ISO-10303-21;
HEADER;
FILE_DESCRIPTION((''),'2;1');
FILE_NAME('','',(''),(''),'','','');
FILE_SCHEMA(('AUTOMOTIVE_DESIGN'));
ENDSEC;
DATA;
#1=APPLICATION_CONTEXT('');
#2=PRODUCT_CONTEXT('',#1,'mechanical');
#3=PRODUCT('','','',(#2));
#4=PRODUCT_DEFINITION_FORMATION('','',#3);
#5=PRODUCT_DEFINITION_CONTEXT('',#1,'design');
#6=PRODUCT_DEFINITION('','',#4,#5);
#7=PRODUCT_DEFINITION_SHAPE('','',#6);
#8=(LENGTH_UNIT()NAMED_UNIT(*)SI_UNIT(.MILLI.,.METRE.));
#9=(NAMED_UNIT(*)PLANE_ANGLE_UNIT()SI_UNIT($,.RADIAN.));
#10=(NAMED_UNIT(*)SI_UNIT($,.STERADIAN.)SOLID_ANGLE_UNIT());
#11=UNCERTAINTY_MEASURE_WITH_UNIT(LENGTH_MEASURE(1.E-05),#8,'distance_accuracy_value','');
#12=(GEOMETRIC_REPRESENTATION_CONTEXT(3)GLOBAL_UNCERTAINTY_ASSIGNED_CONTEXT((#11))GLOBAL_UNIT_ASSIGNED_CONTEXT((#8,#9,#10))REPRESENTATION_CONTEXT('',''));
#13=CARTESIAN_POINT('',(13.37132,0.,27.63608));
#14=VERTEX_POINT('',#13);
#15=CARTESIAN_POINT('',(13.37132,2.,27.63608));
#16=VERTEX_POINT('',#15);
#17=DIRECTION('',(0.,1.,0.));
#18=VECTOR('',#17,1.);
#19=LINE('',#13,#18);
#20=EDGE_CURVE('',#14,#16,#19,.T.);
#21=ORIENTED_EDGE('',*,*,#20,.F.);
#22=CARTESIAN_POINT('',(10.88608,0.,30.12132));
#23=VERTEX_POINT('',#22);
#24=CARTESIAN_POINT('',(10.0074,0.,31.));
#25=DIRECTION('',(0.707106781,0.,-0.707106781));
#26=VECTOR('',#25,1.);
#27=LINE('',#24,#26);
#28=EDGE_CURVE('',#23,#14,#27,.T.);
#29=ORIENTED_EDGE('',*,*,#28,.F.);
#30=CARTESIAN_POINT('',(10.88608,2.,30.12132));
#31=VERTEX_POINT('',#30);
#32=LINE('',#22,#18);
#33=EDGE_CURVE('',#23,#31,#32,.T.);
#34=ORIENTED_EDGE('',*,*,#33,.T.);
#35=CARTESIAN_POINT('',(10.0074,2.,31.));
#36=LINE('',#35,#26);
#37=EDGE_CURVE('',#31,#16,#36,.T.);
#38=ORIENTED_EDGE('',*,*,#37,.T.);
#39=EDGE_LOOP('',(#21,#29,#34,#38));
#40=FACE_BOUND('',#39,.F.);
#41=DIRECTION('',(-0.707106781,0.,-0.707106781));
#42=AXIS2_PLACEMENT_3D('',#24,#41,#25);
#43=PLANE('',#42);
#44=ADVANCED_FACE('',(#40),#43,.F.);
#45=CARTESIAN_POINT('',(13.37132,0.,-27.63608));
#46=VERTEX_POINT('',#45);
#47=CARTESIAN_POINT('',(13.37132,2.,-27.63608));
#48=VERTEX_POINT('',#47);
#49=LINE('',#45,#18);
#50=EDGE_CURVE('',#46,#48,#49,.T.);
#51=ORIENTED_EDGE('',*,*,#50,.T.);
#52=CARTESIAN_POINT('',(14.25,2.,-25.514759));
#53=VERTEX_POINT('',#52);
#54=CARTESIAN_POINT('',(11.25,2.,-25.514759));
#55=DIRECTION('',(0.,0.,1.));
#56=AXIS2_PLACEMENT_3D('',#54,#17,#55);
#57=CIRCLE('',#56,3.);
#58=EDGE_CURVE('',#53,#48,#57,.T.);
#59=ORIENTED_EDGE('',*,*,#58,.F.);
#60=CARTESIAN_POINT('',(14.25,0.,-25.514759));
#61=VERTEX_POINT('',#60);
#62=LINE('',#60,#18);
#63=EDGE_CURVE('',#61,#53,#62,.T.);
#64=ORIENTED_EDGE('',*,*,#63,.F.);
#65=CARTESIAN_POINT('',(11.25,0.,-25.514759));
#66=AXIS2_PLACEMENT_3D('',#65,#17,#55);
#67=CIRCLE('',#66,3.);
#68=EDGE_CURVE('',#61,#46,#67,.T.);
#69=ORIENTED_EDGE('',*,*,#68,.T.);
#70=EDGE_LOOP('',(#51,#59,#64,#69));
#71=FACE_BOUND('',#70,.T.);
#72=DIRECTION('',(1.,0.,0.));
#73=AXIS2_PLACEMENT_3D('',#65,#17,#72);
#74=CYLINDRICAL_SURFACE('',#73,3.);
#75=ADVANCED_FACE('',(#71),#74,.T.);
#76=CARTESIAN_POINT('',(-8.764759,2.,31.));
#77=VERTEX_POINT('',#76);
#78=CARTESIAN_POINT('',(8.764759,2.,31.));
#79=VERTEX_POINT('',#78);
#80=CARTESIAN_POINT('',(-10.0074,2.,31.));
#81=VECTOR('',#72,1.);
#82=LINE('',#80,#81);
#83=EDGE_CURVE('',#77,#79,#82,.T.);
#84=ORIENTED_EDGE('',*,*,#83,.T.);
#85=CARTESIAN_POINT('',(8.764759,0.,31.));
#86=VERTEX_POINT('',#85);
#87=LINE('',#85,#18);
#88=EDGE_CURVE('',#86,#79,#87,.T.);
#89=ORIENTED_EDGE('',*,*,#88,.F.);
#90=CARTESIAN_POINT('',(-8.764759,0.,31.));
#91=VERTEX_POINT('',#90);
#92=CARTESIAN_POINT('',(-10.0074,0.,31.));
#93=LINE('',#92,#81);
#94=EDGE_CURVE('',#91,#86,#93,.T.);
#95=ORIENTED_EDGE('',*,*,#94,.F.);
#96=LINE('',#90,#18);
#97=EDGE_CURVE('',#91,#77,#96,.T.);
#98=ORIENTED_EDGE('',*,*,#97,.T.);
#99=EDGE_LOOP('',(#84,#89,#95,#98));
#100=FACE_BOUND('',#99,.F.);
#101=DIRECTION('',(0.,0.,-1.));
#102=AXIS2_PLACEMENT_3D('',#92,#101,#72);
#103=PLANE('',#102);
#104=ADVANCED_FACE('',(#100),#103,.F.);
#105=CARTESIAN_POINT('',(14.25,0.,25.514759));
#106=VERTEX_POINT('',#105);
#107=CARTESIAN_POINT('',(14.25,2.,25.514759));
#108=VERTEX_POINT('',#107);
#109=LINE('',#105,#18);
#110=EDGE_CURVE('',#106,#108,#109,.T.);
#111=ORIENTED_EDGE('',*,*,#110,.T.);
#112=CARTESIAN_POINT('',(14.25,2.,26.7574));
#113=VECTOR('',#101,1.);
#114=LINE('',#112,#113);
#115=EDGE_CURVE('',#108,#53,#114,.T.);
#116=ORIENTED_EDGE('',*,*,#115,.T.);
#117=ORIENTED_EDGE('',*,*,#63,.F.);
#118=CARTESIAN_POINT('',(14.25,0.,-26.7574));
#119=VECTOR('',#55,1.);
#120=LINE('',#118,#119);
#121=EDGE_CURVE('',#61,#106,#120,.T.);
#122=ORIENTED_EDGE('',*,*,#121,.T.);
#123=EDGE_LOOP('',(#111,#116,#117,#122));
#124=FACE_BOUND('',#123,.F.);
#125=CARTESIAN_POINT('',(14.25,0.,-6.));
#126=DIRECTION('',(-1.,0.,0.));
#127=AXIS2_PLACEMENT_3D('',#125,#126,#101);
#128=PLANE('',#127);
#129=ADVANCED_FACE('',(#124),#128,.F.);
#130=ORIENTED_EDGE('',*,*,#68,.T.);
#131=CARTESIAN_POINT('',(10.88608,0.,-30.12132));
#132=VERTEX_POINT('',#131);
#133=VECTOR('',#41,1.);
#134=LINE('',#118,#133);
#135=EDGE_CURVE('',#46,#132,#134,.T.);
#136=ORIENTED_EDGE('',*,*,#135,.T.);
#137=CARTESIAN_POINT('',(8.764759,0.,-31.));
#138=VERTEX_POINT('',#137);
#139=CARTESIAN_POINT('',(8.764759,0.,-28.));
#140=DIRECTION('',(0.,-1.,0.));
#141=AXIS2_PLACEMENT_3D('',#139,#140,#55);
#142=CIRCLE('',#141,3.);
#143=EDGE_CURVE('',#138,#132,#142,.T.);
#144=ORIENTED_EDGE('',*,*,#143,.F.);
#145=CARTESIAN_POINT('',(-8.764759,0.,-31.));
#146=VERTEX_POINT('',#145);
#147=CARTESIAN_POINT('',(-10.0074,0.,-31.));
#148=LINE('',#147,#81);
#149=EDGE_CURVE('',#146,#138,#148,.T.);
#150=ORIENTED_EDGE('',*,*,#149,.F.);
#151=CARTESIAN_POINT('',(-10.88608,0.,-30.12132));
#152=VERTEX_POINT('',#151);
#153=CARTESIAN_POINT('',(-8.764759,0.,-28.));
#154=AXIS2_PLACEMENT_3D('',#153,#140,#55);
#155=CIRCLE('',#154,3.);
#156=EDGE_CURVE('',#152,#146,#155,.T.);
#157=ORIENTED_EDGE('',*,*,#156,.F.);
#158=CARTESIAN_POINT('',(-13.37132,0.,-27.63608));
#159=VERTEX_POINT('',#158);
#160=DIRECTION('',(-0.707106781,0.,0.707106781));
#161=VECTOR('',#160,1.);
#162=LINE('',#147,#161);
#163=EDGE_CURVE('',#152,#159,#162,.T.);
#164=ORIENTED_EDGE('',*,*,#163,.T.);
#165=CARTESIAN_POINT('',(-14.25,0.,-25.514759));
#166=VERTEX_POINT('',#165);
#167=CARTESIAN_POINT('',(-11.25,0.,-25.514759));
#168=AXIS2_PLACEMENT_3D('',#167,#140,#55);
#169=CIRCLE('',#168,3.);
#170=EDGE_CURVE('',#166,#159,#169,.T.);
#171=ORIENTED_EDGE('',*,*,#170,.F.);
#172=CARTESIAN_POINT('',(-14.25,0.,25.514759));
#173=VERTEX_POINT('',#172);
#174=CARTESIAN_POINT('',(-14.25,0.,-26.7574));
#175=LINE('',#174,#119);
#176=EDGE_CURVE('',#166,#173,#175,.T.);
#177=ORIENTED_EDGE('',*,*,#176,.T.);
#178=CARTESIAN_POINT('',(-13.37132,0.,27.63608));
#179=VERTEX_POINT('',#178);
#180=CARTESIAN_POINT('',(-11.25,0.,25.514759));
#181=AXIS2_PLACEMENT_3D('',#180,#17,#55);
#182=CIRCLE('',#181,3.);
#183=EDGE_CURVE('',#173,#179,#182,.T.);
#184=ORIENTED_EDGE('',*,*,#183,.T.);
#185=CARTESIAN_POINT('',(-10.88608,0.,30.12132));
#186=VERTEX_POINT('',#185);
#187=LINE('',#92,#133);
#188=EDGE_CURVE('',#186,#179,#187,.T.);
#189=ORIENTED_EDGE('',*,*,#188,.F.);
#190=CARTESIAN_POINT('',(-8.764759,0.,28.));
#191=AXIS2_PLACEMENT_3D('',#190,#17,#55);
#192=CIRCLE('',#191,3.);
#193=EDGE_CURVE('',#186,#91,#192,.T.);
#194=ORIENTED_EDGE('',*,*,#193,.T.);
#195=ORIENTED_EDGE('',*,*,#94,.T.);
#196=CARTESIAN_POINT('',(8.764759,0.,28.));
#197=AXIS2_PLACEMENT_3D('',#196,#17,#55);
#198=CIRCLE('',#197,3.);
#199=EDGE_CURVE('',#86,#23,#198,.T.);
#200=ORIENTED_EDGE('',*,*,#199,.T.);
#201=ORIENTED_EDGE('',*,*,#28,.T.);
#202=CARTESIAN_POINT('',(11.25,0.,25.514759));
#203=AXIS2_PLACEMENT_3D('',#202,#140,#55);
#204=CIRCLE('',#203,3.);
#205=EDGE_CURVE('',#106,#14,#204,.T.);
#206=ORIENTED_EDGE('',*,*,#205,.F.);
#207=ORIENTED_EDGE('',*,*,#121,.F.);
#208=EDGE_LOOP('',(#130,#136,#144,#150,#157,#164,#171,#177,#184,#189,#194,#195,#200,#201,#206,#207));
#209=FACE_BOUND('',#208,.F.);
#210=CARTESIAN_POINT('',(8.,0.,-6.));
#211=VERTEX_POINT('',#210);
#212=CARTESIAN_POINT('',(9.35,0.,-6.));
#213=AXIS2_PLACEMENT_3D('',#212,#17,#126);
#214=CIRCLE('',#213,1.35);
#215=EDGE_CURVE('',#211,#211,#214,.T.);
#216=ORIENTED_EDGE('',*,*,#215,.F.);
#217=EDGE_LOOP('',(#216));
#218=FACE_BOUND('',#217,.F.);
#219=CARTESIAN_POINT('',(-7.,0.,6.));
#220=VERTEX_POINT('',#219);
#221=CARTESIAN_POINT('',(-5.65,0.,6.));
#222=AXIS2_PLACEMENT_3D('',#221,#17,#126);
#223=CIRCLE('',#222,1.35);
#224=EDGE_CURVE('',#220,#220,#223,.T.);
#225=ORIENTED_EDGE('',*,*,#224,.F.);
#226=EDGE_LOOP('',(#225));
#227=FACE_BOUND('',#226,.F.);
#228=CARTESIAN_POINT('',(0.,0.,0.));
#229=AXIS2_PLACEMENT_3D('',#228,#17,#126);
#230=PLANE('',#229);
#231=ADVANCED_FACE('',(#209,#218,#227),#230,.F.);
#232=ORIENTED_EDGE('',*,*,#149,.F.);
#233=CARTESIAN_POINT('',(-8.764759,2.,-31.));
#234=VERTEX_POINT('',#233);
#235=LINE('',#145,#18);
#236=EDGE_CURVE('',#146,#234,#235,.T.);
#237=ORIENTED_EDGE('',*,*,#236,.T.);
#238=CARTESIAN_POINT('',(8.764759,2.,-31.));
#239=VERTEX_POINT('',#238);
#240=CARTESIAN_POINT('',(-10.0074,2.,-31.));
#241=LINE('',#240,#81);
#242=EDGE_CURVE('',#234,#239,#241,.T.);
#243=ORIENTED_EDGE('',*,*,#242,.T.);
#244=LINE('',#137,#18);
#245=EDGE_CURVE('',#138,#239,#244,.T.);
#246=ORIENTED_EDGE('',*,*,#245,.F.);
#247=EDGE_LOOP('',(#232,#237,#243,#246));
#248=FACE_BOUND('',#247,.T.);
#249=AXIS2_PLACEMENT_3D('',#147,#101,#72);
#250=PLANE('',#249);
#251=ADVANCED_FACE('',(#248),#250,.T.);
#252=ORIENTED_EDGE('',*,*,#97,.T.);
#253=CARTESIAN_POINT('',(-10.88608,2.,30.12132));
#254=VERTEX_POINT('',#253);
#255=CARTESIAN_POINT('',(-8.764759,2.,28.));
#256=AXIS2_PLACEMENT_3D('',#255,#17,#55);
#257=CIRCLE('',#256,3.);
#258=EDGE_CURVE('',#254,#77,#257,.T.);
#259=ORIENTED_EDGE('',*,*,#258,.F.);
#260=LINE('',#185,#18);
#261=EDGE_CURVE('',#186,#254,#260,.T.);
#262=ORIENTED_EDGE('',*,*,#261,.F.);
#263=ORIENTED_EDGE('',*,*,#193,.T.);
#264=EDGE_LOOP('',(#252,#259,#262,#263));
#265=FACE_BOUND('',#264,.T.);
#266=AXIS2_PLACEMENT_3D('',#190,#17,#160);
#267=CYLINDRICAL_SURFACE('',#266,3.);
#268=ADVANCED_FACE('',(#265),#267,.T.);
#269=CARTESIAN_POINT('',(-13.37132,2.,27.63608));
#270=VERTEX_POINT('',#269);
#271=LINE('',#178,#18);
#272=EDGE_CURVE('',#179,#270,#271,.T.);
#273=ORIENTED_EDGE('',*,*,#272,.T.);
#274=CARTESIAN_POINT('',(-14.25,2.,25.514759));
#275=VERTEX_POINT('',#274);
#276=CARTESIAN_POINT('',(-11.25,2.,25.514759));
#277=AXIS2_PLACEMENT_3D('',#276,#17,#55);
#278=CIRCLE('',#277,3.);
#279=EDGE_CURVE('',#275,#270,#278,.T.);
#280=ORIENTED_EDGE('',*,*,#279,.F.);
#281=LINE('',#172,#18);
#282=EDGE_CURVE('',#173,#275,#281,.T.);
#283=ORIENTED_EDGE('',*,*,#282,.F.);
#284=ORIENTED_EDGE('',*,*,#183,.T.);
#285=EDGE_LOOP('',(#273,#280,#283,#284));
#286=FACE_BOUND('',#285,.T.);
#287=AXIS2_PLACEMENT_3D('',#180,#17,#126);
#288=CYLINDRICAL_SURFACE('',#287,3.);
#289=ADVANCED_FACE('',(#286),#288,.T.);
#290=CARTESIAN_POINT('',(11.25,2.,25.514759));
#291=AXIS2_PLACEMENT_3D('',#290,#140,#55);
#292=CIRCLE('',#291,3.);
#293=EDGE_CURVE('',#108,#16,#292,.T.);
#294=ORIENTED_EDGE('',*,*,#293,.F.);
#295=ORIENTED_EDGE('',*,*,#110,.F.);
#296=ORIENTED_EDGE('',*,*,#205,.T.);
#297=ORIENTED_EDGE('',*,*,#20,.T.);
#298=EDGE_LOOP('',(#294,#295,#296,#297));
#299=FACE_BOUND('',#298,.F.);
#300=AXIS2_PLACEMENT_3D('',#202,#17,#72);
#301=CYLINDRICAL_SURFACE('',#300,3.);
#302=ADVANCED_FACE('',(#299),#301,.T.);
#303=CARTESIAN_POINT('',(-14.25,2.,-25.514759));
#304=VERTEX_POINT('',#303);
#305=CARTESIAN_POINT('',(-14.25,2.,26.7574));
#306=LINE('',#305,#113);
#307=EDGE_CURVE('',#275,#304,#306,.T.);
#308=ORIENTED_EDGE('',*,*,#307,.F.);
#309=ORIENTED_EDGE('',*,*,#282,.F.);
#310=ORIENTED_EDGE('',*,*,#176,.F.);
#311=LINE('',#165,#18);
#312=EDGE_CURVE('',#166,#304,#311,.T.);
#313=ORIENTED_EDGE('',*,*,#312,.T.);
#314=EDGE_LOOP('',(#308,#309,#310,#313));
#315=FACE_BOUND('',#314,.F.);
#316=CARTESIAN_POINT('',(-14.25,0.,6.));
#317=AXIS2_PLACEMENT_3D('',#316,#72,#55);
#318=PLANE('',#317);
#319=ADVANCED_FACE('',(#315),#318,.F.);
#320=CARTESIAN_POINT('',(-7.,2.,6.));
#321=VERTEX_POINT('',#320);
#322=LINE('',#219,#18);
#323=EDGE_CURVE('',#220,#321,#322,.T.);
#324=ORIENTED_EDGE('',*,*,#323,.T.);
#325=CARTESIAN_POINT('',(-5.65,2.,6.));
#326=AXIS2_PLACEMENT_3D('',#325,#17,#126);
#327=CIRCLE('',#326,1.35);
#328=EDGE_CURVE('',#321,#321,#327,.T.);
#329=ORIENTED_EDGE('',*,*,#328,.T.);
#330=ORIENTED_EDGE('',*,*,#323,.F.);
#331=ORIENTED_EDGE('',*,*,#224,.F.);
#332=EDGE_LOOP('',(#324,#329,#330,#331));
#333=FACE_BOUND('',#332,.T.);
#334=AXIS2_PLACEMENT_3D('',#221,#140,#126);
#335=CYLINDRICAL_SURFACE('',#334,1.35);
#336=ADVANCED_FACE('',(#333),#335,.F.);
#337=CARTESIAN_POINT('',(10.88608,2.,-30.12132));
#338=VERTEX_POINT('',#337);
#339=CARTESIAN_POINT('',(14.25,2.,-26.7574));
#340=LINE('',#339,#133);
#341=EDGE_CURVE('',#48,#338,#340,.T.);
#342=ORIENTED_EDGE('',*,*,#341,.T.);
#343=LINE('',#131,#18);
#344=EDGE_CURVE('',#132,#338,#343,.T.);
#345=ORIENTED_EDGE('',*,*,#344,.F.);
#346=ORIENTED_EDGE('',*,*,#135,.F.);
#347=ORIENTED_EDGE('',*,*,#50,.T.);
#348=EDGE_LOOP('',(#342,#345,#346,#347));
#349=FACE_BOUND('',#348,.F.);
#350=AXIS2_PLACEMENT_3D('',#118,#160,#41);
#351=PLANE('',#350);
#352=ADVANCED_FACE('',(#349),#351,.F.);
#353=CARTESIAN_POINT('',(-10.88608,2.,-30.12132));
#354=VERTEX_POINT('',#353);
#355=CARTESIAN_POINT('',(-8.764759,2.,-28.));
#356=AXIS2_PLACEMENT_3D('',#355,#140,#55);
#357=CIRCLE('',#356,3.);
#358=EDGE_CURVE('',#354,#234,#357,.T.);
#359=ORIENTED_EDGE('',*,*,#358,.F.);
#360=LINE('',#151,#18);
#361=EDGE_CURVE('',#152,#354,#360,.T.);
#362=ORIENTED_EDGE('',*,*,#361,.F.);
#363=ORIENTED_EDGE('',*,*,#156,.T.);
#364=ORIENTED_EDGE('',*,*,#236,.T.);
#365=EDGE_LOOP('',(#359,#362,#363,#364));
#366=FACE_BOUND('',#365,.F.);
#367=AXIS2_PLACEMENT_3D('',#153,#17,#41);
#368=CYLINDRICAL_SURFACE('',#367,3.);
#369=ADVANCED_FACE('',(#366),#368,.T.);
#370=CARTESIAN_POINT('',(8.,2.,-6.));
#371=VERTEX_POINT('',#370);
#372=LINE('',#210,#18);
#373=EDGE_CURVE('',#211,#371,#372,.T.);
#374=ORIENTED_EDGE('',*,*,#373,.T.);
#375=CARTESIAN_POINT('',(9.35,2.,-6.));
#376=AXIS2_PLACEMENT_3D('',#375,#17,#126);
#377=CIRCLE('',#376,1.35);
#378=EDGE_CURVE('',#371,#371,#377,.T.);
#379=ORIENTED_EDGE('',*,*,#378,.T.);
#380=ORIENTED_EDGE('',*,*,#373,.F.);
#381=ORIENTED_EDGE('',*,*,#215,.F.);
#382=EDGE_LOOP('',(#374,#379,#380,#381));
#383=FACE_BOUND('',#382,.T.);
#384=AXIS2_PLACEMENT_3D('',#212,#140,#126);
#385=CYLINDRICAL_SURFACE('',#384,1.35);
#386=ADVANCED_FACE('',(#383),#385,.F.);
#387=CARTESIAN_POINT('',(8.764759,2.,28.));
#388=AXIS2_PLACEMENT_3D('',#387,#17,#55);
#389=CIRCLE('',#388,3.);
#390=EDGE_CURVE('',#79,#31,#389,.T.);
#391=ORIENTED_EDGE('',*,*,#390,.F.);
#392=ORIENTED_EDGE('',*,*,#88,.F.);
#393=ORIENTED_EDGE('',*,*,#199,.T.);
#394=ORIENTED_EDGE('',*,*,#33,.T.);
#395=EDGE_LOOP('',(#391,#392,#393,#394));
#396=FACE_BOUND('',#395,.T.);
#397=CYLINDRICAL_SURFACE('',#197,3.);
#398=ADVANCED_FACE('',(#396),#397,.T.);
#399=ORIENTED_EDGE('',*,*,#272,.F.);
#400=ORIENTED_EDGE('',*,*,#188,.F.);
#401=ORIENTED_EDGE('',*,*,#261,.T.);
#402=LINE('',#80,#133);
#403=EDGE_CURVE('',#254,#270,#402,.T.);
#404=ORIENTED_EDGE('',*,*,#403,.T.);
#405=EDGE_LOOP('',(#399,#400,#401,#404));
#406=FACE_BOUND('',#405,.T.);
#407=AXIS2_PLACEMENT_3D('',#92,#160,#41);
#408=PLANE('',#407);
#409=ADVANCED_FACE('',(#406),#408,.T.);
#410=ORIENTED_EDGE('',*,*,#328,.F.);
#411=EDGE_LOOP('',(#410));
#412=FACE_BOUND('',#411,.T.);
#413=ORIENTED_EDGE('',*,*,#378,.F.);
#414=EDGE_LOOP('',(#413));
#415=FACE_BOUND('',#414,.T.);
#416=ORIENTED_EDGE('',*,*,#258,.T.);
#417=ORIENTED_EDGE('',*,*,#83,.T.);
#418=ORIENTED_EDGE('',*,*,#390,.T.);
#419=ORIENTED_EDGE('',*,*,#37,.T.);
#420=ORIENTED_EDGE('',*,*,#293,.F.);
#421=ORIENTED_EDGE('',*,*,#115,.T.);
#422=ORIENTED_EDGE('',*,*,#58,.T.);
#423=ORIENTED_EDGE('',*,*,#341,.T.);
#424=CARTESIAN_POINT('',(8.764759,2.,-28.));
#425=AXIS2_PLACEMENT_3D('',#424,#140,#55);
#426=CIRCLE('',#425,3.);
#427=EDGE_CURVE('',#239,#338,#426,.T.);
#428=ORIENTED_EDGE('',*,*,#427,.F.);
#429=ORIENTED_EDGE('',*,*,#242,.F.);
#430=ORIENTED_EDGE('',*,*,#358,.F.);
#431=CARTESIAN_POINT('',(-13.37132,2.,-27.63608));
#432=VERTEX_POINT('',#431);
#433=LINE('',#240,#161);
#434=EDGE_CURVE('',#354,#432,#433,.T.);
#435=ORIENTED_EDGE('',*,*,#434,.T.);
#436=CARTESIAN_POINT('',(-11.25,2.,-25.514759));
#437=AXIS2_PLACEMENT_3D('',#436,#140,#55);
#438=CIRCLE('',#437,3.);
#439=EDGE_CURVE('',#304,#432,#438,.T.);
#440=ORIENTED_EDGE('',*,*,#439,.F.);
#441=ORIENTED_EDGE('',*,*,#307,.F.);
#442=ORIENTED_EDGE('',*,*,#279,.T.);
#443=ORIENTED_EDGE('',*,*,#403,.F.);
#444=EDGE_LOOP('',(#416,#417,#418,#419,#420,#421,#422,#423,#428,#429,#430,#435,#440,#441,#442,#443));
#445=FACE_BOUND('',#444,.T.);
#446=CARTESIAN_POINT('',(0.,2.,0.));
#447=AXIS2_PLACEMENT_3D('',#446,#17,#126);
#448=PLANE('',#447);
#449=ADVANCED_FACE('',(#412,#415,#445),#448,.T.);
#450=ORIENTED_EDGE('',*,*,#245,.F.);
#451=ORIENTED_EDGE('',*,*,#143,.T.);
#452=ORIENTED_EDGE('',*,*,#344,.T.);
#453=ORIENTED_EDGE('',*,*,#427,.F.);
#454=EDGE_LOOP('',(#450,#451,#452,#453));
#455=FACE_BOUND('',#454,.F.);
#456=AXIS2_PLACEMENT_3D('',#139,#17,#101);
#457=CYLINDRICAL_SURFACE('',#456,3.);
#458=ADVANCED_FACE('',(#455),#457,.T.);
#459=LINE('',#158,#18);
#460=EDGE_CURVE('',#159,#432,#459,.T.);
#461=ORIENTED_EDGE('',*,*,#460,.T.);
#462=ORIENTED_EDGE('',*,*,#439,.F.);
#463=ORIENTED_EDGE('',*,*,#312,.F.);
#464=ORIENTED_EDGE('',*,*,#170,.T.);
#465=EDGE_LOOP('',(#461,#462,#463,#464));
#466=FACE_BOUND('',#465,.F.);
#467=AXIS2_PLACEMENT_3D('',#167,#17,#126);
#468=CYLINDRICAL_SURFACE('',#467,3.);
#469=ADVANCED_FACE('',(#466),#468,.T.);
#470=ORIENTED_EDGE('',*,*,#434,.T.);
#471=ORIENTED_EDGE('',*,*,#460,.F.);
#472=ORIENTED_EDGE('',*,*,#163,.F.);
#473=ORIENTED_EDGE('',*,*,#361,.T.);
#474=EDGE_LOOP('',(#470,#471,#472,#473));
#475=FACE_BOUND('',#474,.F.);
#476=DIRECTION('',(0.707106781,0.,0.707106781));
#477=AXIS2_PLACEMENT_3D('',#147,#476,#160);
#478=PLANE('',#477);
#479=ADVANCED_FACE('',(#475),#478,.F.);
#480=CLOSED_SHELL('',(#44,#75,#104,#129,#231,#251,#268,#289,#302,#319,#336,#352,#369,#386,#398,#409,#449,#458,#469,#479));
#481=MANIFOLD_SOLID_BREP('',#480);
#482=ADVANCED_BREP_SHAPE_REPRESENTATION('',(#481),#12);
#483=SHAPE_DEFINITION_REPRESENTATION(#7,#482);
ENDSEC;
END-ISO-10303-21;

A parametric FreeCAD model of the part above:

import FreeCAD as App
import Part
import Sketcher

V = App.Vector


def edges_at(feature, points):
    """Names of the edges that pass closest to the given points."""
    edges = feature.Shape.Edges
    near = lambda p: min(range(len(edges)), key=lambda i: edges[i].distToShape(Part.Vertex(*p))[0])
    return sorted({f"Edge{near(p) + 1}" for p in points})


def add_polygon(sketch, points):
    """Adds a closed chain of lines whose ends are joined by coincident constraints."""
    first, n = sketch.GeometryCount, len(points)
    for a, b in zip(points, points[1:] + points[:1]):
        sketch.addGeometry(Part.LineSegment(App.Vector(*a, 0), App.Vector(*b, 0)), False)
    for i in range(n):
        sketch.addConstraint(Sketcher.Constraint("Coincident", first + i, 2, first + (i + 1) % n, 1))

doc = App.newDocument("Part")
body = doc.addObject("PartDesign::Body", "Body")

# Sketch on XZ plane
sketch1 = body.newObject("Sketcher::SketchObject", "Sketch")
sketch1.AttachmentSupport = (doc.getObject("XZ_Plane"), [""])
sketch1.MapMode = "FlatFace"
add_polygon(sketch1, [(-14.25, 26.7574), (-10.0074, 31), (10.0074, 31), (14.25, 26.7574), (14.25, -26.7574), (10.0074, -31), (-10.0074, -31), (-14.25, -26.7574)])  # lines 0-7
sketch1.addGeometry(Part.Circle(V(9.35, -6, 0), V(0, 0, 1), 1.35), False)  # 8
sketch1.addGeometry(Part.Circle(V(-5.65, 6, 0), V(0, 0, 1), 1.35), False)  # 9
sketch1.addConstraint([
    Sketcher.Constraint("Horizontal", 1),
    Sketcher.Constraint("Vertical", 3),
    Sketcher.Constraint("Horizontal", 5),
    Sketcher.Constraint("Vertical", 7),
    Sketcher.Constraint("Equal", 8, 9),
    Sketcher.Constraint("Symmetric", 0, 2, 4, 2, -1, 1),
    Sketcher.Constraint("Symmetric", 2, 2, 6, 2, -1, 1),
    Sketcher.Constraint("Perpendicular", 0, 2),
    Sketcher.Constraint("Perpendicular", 2, 4),
    Sketcher.Constraint("Perpendicular", 4, 6),
    Sketcher.Constraint("Horizontal", 3, 2, 6, 2),
    Sketcher.Constraint("Vertical", 1, 2, 4, 2),
    Sketcher.Constraint("Diameter", 8, 2.7),
    Sketcher.Constraint("Distance", 0, 6.0),
    Sketcher.Constraint("DistanceY", 8, 3, -1, 1, 6.0),
    Sketcher.Constraint("DistanceY", -1, 1, 9, 3, 6.0),
    Sketcher.Constraint("DistanceX", 6, 2, 3, 2, 28.5),
    Sketcher.Constraint("DistanceX", 6, 2, 8, 3, 23.6),
    Sketcher.Constraint("DistanceX", 6, 2, 9, 3, 8.6),
    Sketcher.Constraint("DistanceY", -1, 1, 0, 2, 31.0),
])
pad1 = body.newObject("PartDesign::Pad", "Pad")
pad1.Profile = sketch1
pad1.Length = 2
pad1.Reversed = True
doc.recompute()

fillet = body.newObject("PartDesign::Fillet", "Fillet")
fillet.Base = (pad1, edges_at(pad1, [
    (-10.007, 1, 31),
    (-14.25, 1, 26.757),
    (-14.25, 1, -26.757),
    (-10.007, 1, -31),
    (10.007, 1, 31),
    (14.25, 1, 26.757),
    (10.007, 1, -31),
    (14.25, 1, -26.757),
]))
fillet.Radius = 3

doc.recompute()
